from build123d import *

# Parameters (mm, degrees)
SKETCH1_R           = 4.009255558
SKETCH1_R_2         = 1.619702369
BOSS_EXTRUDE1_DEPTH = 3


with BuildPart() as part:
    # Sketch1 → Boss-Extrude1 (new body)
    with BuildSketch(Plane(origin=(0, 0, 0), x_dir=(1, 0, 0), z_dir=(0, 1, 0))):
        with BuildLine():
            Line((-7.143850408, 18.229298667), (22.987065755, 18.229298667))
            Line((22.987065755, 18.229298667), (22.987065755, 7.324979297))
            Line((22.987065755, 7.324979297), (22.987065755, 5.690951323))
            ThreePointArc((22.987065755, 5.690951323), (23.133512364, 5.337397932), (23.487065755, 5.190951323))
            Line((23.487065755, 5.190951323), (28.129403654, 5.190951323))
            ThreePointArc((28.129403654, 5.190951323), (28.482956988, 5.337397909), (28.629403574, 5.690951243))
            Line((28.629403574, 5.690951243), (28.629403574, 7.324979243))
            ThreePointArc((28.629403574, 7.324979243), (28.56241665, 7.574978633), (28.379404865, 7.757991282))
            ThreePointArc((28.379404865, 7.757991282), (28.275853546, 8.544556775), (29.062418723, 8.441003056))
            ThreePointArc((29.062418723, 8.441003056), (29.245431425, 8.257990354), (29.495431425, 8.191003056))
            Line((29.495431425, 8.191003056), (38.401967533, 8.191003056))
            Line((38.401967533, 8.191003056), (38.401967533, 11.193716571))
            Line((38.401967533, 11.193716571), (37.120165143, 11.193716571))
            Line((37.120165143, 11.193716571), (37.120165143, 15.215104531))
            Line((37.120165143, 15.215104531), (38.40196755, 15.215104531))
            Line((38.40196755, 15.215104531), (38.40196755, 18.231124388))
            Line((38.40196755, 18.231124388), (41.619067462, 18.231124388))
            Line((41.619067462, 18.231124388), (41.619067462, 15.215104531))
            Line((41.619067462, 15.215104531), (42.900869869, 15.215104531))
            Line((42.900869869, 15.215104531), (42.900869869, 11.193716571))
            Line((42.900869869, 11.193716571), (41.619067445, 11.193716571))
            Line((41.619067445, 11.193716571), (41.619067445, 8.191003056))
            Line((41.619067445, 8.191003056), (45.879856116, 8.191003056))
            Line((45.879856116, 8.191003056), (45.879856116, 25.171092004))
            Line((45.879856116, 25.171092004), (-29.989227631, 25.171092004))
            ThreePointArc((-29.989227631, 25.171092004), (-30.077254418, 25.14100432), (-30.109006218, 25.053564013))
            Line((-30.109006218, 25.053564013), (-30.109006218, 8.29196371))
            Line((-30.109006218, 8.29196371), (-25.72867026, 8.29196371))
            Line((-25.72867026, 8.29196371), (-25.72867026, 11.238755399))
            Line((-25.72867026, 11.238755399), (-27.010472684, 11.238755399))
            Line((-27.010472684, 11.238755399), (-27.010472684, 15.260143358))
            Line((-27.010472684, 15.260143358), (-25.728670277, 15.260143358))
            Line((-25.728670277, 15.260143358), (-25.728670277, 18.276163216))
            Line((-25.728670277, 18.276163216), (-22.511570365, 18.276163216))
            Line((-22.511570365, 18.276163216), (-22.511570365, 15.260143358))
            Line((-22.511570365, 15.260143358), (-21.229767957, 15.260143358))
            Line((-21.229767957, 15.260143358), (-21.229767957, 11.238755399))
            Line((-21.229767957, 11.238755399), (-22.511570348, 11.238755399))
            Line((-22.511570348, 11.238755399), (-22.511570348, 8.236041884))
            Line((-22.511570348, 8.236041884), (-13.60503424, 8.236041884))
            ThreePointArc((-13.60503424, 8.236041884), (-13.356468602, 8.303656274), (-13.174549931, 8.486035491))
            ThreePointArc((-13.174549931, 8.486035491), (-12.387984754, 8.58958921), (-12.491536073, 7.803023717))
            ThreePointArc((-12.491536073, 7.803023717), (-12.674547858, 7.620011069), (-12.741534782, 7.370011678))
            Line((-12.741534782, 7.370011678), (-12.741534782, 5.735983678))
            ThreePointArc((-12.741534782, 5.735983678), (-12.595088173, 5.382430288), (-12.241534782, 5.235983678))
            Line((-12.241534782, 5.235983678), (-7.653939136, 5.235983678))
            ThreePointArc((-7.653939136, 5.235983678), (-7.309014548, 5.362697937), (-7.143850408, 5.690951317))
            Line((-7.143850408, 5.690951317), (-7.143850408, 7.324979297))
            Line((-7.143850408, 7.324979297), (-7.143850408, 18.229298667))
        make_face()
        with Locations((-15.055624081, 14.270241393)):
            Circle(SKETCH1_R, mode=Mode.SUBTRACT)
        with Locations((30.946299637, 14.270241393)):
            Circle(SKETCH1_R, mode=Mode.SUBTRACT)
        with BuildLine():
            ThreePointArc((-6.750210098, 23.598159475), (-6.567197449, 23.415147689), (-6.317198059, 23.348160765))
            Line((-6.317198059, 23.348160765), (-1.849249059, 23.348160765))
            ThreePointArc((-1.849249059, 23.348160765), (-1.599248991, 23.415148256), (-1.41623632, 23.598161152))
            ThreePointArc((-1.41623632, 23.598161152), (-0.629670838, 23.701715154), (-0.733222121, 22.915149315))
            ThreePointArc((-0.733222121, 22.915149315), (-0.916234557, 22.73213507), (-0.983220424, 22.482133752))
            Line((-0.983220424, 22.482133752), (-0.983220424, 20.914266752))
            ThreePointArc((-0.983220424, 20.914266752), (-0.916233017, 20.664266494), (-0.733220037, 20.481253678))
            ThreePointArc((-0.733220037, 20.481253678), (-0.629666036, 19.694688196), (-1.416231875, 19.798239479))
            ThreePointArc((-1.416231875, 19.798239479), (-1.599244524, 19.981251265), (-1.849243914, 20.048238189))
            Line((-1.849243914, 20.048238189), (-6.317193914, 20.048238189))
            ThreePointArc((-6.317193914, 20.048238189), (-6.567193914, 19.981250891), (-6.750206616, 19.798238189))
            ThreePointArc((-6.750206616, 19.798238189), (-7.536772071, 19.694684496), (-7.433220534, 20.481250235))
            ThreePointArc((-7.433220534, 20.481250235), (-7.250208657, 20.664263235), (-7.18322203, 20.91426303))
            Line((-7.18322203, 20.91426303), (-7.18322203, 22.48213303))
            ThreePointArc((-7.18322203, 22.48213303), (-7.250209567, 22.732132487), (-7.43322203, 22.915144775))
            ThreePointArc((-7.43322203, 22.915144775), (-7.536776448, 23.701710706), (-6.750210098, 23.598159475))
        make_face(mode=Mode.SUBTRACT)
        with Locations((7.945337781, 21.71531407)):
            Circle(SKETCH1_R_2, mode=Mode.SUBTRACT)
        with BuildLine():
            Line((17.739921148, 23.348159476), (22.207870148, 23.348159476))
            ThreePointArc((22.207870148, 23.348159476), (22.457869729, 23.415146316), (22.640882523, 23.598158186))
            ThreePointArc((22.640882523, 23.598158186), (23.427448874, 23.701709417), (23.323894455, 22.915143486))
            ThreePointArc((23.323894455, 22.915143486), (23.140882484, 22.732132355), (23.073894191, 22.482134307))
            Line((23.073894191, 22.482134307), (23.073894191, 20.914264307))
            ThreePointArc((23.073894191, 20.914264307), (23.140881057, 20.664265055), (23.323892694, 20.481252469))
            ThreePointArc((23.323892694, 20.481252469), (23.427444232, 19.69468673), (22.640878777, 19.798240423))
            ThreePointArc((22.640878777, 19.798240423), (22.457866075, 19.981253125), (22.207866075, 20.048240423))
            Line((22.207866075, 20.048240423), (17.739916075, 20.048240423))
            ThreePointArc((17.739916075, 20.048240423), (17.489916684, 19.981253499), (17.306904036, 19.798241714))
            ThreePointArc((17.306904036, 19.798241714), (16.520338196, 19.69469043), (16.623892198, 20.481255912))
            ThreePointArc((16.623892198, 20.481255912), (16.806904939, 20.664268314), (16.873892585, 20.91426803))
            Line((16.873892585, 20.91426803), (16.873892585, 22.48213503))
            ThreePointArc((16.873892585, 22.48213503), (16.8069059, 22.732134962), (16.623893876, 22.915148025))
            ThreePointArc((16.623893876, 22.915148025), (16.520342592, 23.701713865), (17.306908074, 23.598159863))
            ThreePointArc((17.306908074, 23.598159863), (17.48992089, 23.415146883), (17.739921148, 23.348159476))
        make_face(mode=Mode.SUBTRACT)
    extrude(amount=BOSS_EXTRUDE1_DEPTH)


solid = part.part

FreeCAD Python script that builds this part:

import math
import FreeCAD as App
import Part
import Sketcher
from FreeCAD import Vector
Q = App.Units.Quantity

doc = App.newDocument("Part")
body = doc.addObject("PartDesign::Body", "Body")

# Sketch on XZ plane
sketch1 = body.newObject("Sketcher::SketchObject", "Sketch")
sketch1.AttachmentSupport = (doc.getObject("XZ_Plane"), [""])
sketch1.MapMode = "FlatFace"
sketch1.addGeometry(Part.LineSegment(Vector(-7.14385, -18.229299, 0), Vector(22.987066, -18.229299, 0)), False)
sketch1.addGeometry(Part.LineSegment(Vector(22.987066, -18.229299, 0), Vector(22.987066, -5.690951, 0)), False)
sketch1.addGeometry(Part.ArcOfCircle(Part.Circle(Vector(23.487066, -5.690951, 0), Vector(0, 0, 1), 0.5), math.radians(90), math.radians(180)), False)
sketch1.addGeometry(Part.LineSegment(Vector(23.487066, -5.190951, 0), Vector(28.129404, -5.190951, 0)), False)
sketch1.addGeometry(Part.ArcOfCircle(Part.Circle(Vector(28.129404, -5.690951, 0), Vector(0, 0, 1), 0.5), math.radians(0), math.radians(90)), False)
sketch1.addGeometry(Part.LineSegment(Vector(28.629404, -5.690951, 0), Vector(28.629404, -7.324979, 0)), False)
sketch1.addGeometry(Part.ArcOfCircle(Part.Circle(Vector(28.129403, -7.324979, 0), Vector(0, 0, 1), 0.5), math.radians(-59.99982), math.radians(0)), False)
sketch1.addGeometry(Part.ArcOfCircle(Part.Circle(Vector(28.629406, -8.191003, 0), Vector(0, 0, 1), 0.5), math.radians(120.000198), math.radians(329.999977)), False)
sketch1.addGeometry(Part.ArcOfCircle(Part.Circle(Vector(29.495431, -8.691003, 0), Vector(0, 0, 1), 0.5), math.radians(90), math.radians(150)), False)
sketch1.addGeometry(Part.LineSegment(Vector(29.495431, -8.191003, 0), Vector(38.401968, -8.191003, 0)), False)
sketch1.addGeometry(Part.LineSegment(Vector(38.401968, -8.191003, 0), Vector(38.401968, -11.193717, 0)), False)
sketch1.addGeometry(Part.LineSegment(Vector(38.401968, -11.193717, 0), Vector(37.120165, -11.193717, 0)), False)
sketch1.addGeometry(Part.LineSegment(Vector(37.120165, -11.193717, 0), Vector(37.120165, -15.215105, 0)), False)
sketch1.addGeometry(Part.LineSegment(Vector(37.120165, -15.215105, 0), Vector(38.401968, -15.215105, 0)), False)
sketch1.addGeometry(Part.LineSegment(Vector(38.401968, -15.215105, 0), Vector(38.401968, -18.231124, 0)), False)
sketch1.addGeometry(Part.LineSegment(Vector(38.401968, -18.231124, 0), Vector(41.619067, -18.231124, 0)), False)
sketch1.addGeometry(Part.LineSegment(Vector(41.619067, -18.231124, 0), Vector(41.619067, -15.215105, 0)), False)
sketch1.addGeometry(Part.LineSegment(Vector(41.619067, -15.215105, 0), Vector(42.90087, -15.215105, 0)), False)
sketch1.addGeometry(Part.LineSegment(Vector(42.90087, -15.215105, 0), Vector(42.90087, -11.193717, 0)), False)
sketch1.addGeometry(Part.LineSegment(Vector(42.90087, -11.193717, 0), Vector(41.619067, -11.193717, 0)), False)
sketch1.addGeometry(Part.LineSegment(Vector(41.619067, -11.193717, 0), Vector(41.619067, -8.191003, 0)), False)
sketch1.addGeometry(Part.LineSegment(Vector(41.619067, -8.191003, 0), Vector(45.879856, -8.191003, 0)), False)
sketch1.addGeometry(Part.LineSegment(Vector(45.879856, -8.191003, 0), Vector(45.879856, -25.171092, 0)), False)
sketch1.addGeometry(Part.LineSegment(Vector(45.879856, -25.171092, 0), Vector(-29.989228, -25.171092, 0)), False)
sketch1.addGeometry(Part.ArcOfCircle(Part.Circle(Vector(-30.001823, -25.064128, 0), Vector(0, 0, 1), 0.107703), math.radians(174.371122), math.radians(276.715622)), False)
sketch1.addGeometry(Part.LineSegment(Vector(-30.109006, -25.053564, 0), Vector(-30.109006, -8.291964, 0)), False)
sketch1.addGeometry(Part.LineSegment(Vector(-30.109006, -8.291964, 0), Vector(-25.72867, -8.291964, 0)), False)
sketch1.addGeometry(Part.LineSegment(Vector(-25.72867, -8.291964, 0), Vector(-25.72867, -11.238755, 0)), False)
sketch1.addGeometry(Part.LineSegment(Vector(-25.72867, -11.238755, 0), Vector(-27.010473, -11.238755, 0)), False)
sketch1.addGeometry(Part.LineSegment(Vector(-27.010473, -11.238755, 0), Vector(-27.010473, -15.260143, 0)), False)
sketch1.addGeometry(Part.LineSegment(Vector(-27.010473, -15.260143, 0), Vector(-25.72867, -15.260143, 0)), False)
sketch1.addGeometry(Part.LineSegment(Vector(-25.72867, -15.260143, 0), Vector(-25.72867, -18.276163, 0)), False)
sketch1.addGeometry(Part.LineSegment(Vector(-25.72867, -18.276163, 0), Vector(-22.51157, -18.276163, 0)), False)
sketch1.addGeometry(Part.LineSegment(Vector(-22.51157, -18.276163, 0), Vector(-22.51157, -15.260143, 0)), False)
sketch1.addGeometry(Part.LineSegment(Vector(-22.51157, -15.260143, 0), Vector(-21.229768, -15.260143, 0)), False)
sketch1.addGeometry(Part.LineSegment(Vector(-21.229768, -15.260143, 0), Vector(-21.229768, -11.238755, 0)), False)
sketch1.addGeometry(Part.LineSegment(Vector(-21.229768, -11.238755, 0), Vector(-22.51157, -11.238755, 0)), False)
sketch1.addGeometry(Part.LineSegment(Vector(-22.51157, -11.238755, 0), Vector(-22.51157, -8.236042, 0)), False)
sketch1.addGeometry(Part.LineSegment(Vector(-22.51157, -8.236042, 0), Vector(-13.605034, -8.236042, 0)), False)
sketch1.addGeometry(Part.ArcOfCircle(Part.Circle(Vector(-13.607563, -8.736035, 0), Vector(0, 0, 1), 0.5), math.radians(30), math.radians(89.710266)), False)
sketch1.addGeometry(Part.ArcOfCircle(Part.Circle(Vector(-12.741537, -8.236035, 0), Vector(0, 0, 1), 0.5), math.radians(-149.999977), math.radians(59.999802)), False)
sketch1.addGeometry(Part.ArcOfCircle(Part.Circle(Vector(-12.241535, -7.370012, 0), Vector(0, 0, 1), 0.5), math.radians(180), math.radians(239.99982)), False)
sketch1.addGeometry(Part.LineSegment(Vector(-12.741535, -7.370012, 0), Vector(-12.741535, -5.735984, 0)), False)
sketch1.addGeometry(Part.ArcOfCircle(Part.Circle(Vector(-12.241535, -5.735984, 0), Vector(0, 0, 1), 0.5), math.radians(90), math.radians(180)), False)
sketch1.addGeometry(Part.LineSegment(Vector(-12.241535, -5.235984, 0), Vector(-7.653939, -5.235984, 0)), False)
sketch1.addGeometry(Part.ArcOfCircle(Part.Circle(Vector(-7.641832, -5.735837, 0), Vector(0, 0, 1), 0.5), math.radians(5.150462), math.radians(91.387557)), False)
sketch1.addGeometry(Part.LineSegment(Vector(-7.14385, -5.690951, 0), Vector(-7.14385, -18.229299, 0)), False)
sketch1.addGeometry(Part.Circle(Vector(-15.055624, -14.270241, 0), Vector(0, 0, 1), 4.009256), False)
sketch1.addGeometry(Part.Circle(Vector(30.9463, -14.270241, 0), Vector(0, 0, 1), 4.009256), False)
sketch1.addGeometry(Part.ArcOfCircle(Part.Circle(Vector(-7.183222, -23.348158, 0), Vector(0, 0, 1), 0.5), math.radians(119.999966), math.radians(329.999802)), False)
sketch1.addGeometry(Part.ArcOfCircle(Part.Circle(Vector(-6.317198, -23.848161, 0), Vector(0, 0, 1), 0.5), math.radians(90), math.radians(149.99982)), False)
sketch1.addGeometry(Part.LineSegment(Vector(-6.317198, -23.348161, 0), Vector(-1.849249, -23.348161, 0)), False)
sketch1.addGeometry(Part.ArcOfCircle(Part.Circle(Vector(-1.849249, -23.848161, 0), Vector(0, 0, 1), 0.5), math.radians(29.999966), math.radians(89.999962)), False)
sketch1.addGeometry(Part.ArcOfCircle(Part.Circle(Vector(-0.983224, -23.348161, 0), Vector(0, 0, 1), 0.5), math.radians(-150), math.radians(59.999802)), False)
sketch1.addGeometry(Part.ArcOfCircle(Part.Circle(Vector(-0.48322, -22.482138, 0), Vector(0, 0, 1), 0.5), math.radians(179.999569), math.radians(239.999766)), False)
sketch1.addGeometry(Part.LineSegment(Vector(-0.98322, -22.482134, 0), Vector(-0.98322, -20.914267, 0)), False)
sketch1.addGeometry(Part.ArcOfCircle(Part.Circle(Vector(-0.48322, -20.914267, 0), Vector(0, 0, 1), 0.5), math.radians(119.999966), math.radians(180)), False)
sketch1.addGeometry(Part.ArcOfCircle(Part.Circle(Vector(-0.98322, -20.048241, 0), Vector(0, 0, 1), 0.5), math.radians(-60), math.radians(149.999802)), False)
sketch1.addGeometry(Part.ArcOfCircle(Part.Circle(Vector(-1.849244, -19.548238, 0), Vector(0, 0, 1), 0.5), math.radians(-90), math.radians(-30.00018)), False)
sketch1.addGeometry(Part.LineSegment(Vector(-1.849244, -20.048238, 0), Vector(-6.317194, -20.048238, 0)), False)
sketch1.addGeometry(Part.ArcOfCircle(Part.Circle(Vector(-6.317194, -19.548238, 0), Vector(0, 0, 1), 0.5), math.radians(-150), math.radians(-90)), False)
sketch1.addGeometry(Part.ArcOfCircle(Part.Circle(Vector(-7.183219, -20.048238, 0), Vector(0, 0, 1), 0.5), math.radians(30.000023), math.radians(239.99982)), False)
sketch1.addGeometry(Part.ArcOfCircle(Part.Circle(Vector(-7.683222, -20.914262, 0), Vector(0, 0, 1), 0.5), math.radians(-0.00011), math.radians(59.999802)), False)
sketch1.addGeometry(Part.LineSegment(Vector(-7.183222, -20.914263, 0), Vector(-7.183222, -22.482133, 0)), False)
sketch1.addGeometry(Part.ArcOfCircle(Part.Circle(Vector(-7.683222, -22.482132, 0), Vector(0, 0, 1), 0.5), math.radians(-60), math.radians(-0.00011)), False)
sketch1.addGeometry(Part.Circle(Vector(7.945338, -21.715314, 0), Vector(0, 0, 1), 1.619702), False)
sketch1.addGeometry(Part.ArcOfCircle(Part.Circle(Vector(17.739921, -23.84816, 0), Vector(0, 0, 1), 0.5), math.radians(90), math.radians(150.000034)), False)
sketch1.addGeometry(Part.LineSegment(Vector(17.739921, -23.348159, 0), Vector(22.20787, -23.348159, 0)), False)
sketch1.addGeometry(Part.ArcOfCircle(Part.Circle(Vector(22.20787, -23.84816, 0), Vector(0, 0, 1), 0.5), math.radians(30.00018), math.radians(90.000039)), False)
sketch1.addGeometry(Part.ArcOfCircle(Part.Circle(Vector(23.073895, -23.348157, 0), Vector(0, 0, 1), 0.5), math.radians(-149.999802), math.radians(60.000034)), False)
sketch1.addGeometry(Part.ArcOfCircle(Part.Circle(Vector(23.573894, -22.482131, 0), Vector(0, 0, 1), 0.5), math.radians(-179.999579), math.radians(-119.999965)), False)
sketch1.addGeometry(Part.LineSegment(Vector(23.073894, -22.482134, 0), Vector(23.073894, -20.914264, 0)), False)
sketch1.addGeometry(Part.ArcOfCircle(Part.Circle(Vector(23.573894, -20.914264, 0), Vector(0, 0, 1), 0.5), math.radians(120.000198), math.radians(180)), False)
sketch1.addGeometry(Part.ArcOfCircle(Part.Circle(Vector(23.073891, -20.048241, 0), Vector(0, 0, 1), 0.5), math.radians(-59.99982), math.radians(149.999977)), False)
sketch1.addGeometry(Part.ArcOfCircle(Part.Circle(Vector(22.207866, -19.54824, 0), Vector(0, 0, 1), 0.5), math.radians(-90), math.radians(-30)), False)
sketch1.addGeometry(Part.LineSegment(Vector(22.207866, -20.04824, 0), Vector(17.739916, -20.04824, 0)), False)
sketch1.addGeometry(Part.ArcOfCircle(Part.Circle(Vector(17.739916, -19.54824, 0), Vector(0, 0, 1), 0.5), math.radians(-149.99982), math.radians(-90)), False)
sketch1.addGeometry(Part.ArcOfCircle(Part.Circle(Vector(16.873892, -20.048243, 0), Vector(0, 0, 1), 0.5), math.radians(30.000198), math.radians(240)), False)
sketch1.addGeometry(Part.ArcOfCircle(Part.Circle(Vector(16.373892, -20.914269, 0), Vector(0, 0, 1), 0.5), math.radians(0.000109), math.radians(60.000034)), False)
sketch1.addGeometry(Part.LineSegment(Vector(16.873893, -20.914268, 0), Vector(16.873893, -22.482135, 0)), False)
sketch1.addGeometry(Part.ArcOfCircle(Part.Circle(Vector(16.373892, -22.482136, 0), Vector(0, 0, 1), 0.5), math.radians(-59.99982), math.radians(0.000109)), False)
sketch1.addGeometry(Part.ArcOfCircle(Part.Circle(Vector(16.873895, -23.34816, 0), Vector(0, 0, 1), 0.5), math.radians(120.000198), math.radians(330)), False)
sketch1.addConstraint(Sketcher.Constraint("Coincident", 0, 2, 1, 1))
sketch1.addConstraint(Sketcher.Constraint("Coincident", 1, 2, 2, 2))
sketch1.addConstraint(Sketcher.Constraint("Coincident", 2, 1, 3, 1))
sketch1.addConstraint(Sketcher.Constraint("Coincident", 3, 2, 4, 2))
sketch1.addConstraint(Sketcher.Constraint("Coincident", 4, 1, 5, 1))
sketch1.addConstraint(Sketcher.Constraint("Coincident", 5, 2, 6, 2))
sketch1.addConstraint(Sketcher.Constraint("Coincident", 6, 1, 7, 1))
sketch1.addConstraint(Sketcher.Constraint("Coincident", 7, 2, 8, 2))
sketch1.addConstraint(Sketcher.Constraint("Coincident", 8, 1, 9, 1))
sketch1.addConstraint(Sketcher.Constraint("Coincident", 9, 2, 10, 1))
sketch1.addConstraint(Sketcher.Constraint("Coincident", 10, 2, 11, 1))
sketch1.addConstraint(Sketcher.Constraint("Coincident", 11, 2, 12, 1))
sketch1.addConstraint(Sketcher.Constraint("Coincident", 12, 2, 13, 1))
sketch1.addConstraint(Sketcher.Constraint("Coincident", 13, 2, 14, 1))
sketch1.addConstraint(Sketcher.Constraint("Coincident", 14, 2, 15, 1))
sketch1.addConstraint(Sketcher.Constraint("Coincident", 15, 2, 16, 1))
sketch1.addConstraint(Sketcher.Constraint("Coincident", 16, 2, 17, 1))
sketch1.addConstraint(Sketcher.Constraint("Coincident", 17, 2, 18, 1))
sketch1.addConstraint(Sketcher.Constraint("Coincident", 18, 2, 19, 1))
sketch1.addConstraint(Sketcher.Constraint("Coincident", 19, 2, 20, 1))
sketch1.addConstraint(Sketcher.Constraint("Coincident", 20, 2, 21, 1))
sketch1.addConstraint(Sketcher.Constraint("Coincident", 21, 2, 22, 1))
sketch1.addConstraint(Sketcher.Constraint("Coincident", 22, 2, 23, 1))
sketch1.addConstraint(Sketcher.Constraint("Coincident", 23, 2, 24, 2))
sketch1.addConstraint(Sketcher.Constraint("Coincident", 24, 1, 25, 1))
sketch1.addConstraint(Sketcher.Constraint("Coincident", 25, 2, 26, 1))
sketch1.addConstraint(Sketcher.Constraint("Coincident", 26, 2, 27, 1))
sketch1.addConstraint(Sketcher.Constraint("Coincident", 27, 2, 28, 1))
sketch1.addConstraint(Sketcher.Constraint("Coincident", 28, 2, 29, 1))
sketch1.addConstraint(Sketcher.Constraint("Coincident", 29, 2, 30, 1))
sketch1.addConstraint(Sketcher.Constraint("Coincident", 30, 2, 31, 1))
sketch1.addConstraint(Sketcher.Constraint("Coincident", 31, 2, 32, 1))
sketch1.addConstraint(Sketcher.Constraint("Coincident", 32, 2, 33, 1))
sketch1.addConstraint(Sketcher.Constraint("Coincident", 33, 2, 34, 1))
sketch1.addConstraint(Sketcher.Constraint("Coincident", 34, 2, 35, 1))
sketch1.addConstraint(Sketcher.Constraint("Coincident", 35, 2, 36, 1))
sketch1.addConstraint(Sketcher.Constraint("Coincident", 36, 2, 37, 1))
sketch1.addConstraint(Sketcher.Constraint("Coincident", 37, 2, 38, 1))
sketch1.addConstraint(Sketcher.Constraint("Coincident", 38, 2, 39, 2))
sketch1.addConstraint(Sketcher.Constraint("Coincident", 39, 1, 40, 1))
sketch1.addConstraint(Sketcher.Constraint("Coincident", 40, 2, 41, 2))
sketch1.addConstraint(Sketcher.Constraint("Coincident", 41, 1, 42, 1))
sketch1.addConstraint(Sketcher.Constraint("Coincident", 42, 2, 43, 2))
sketch1.addConstraint(Sketcher.Constraint("Coincident", 43, 1, 44, 1))
sketch1.addConstraint(Sketcher.Constraint("Coincident", 44, 2, 45, 2))
sketch1.addConstraint(Sketcher.Constraint("Coincident", 45, 1, 46, 1))
sketch1.addConstraint(Sketcher.Constraint("Coincident", 46, 2, 0, 1))
sketch1.addConstraint(Sketcher.Constraint("Coincident", 49, 2, 50, 2))
sketch1.addConstraint(Sketcher.Constraint("Coincident", 50, 1, 51, 1))
sketch1.addConstraint(Sketcher.Constraint("Coincident", 51, 2, 52, 2))
sketch1.addConstraint(Sketcher.Constraint("Coincident", 52, 1, 53, 1))
sketch1.addConstraint(Sketcher.Constraint("Coincident", 53, 2, 54, 2))
sketch1.addConstraint(Sketcher.Constraint("Coincident", 54, 1, 55, 1))
sketch1.addConstraint(Sketcher.Constraint("Coincident", 55, 2, 56, 2))
sketch1.addConstraint(Sketcher.Constraint("Coincident", 56, 1, 57, 1))
sketch1.addConstraint(Sketcher.Constraint("Coincident", 57, 2, 58, 2))
sketch1.addConstraint(Sketcher.Constraint("Coincident", 58, 1, 59, 1))
sketch1.addConstraint(Sketcher.Constraint("Coincident", 59, 2, 60, 2))
sketch1.addConstraint(Sketcher.Constraint("Coincident", 60, 1, 61, 1))
sketch1.addConstraint(Sketcher.Constraint("Coincident", 61, 2, 62, 2))
sketch1.addConstraint(Sketcher.Constraint("Coincident", 62, 1, 63, 1))
sketch1.addConstraint(Sketcher.Constraint("Coincident", 63, 2, 64, 2))
sketch1.addConstraint(Sketcher.Constraint("Coincident", 64, 1, 49, 1))
sketch1.addConstraint(Sketcher.Constraint("Coincident", 66, 1, 67, 1))
sketch1.addConstraint(Sketcher.Constraint("Coincident", 67, 2, 68, 2))
sketch1.addConstraint(Sketcher.Constraint("Coincident", 68, 1, 69, 1))
sketch1.addConstraint(Sketcher.Constraint("Coincident", 69, 2, 70, 2))
sketch1.addConstraint(Sketcher.Constraint("Coincident", 70, 1, 71, 1))
sketch1.addConstraint(Sketcher.Constraint("Coincident", 71, 2, 72, 2))
sketch1.addConstraint(Sketcher.Constraint("Coincident", 72, 1, 73, 1))
sketch1.addConstraint(Sketcher.Constraint("Coincident", 73, 2, 74, 2))
sketch1.addConstraint(Sketcher.Constraint("Coincident", 74, 1, 75, 1))
sketch1.addConstraint(Sketcher.Constraint("Coincident", 75, 2, 76, 2))
sketch1.addConstraint(Sketcher.Constraint("Coincident", 76, 1, 77, 1))
sketch1.addConstraint(Sketcher.Constraint("Coincident", 77, 2, 78, 2))
sketch1.addConstraint(Sketcher.Constraint("Coincident", 78, 1, 79, 1))
sketch1.addConstraint(Sketcher.Constraint("Coincident", 79, 2, 80, 2))
sketch1.addConstraint(Sketcher.Constraint("Coincident", 80, 1, 81, 1))
sketch1.addConstraint(Sketcher.Constraint("Coincident", 81, 2, 66, 2))
sketch1.addConstraint(Sketcher.Constraint("Horizontal", 0))
sketch1.addConstraint(Sketcher.Constraint("Vertical", 1))
sketch1.addConstraint(Sketcher.Constraint("Horizontal", 3))
sketch1.addConstraint(Sketcher.Constraint("Vertical", 5))
sketch1.addConstraint(Sketcher.Constraint("Horizontal", 9))
sketch1.addConstraint(Sketcher.Constraint("Vertical", 10))
sketch1.addConstraint(Sketcher.Constraint("Horizontal", 11))
sketch1.addConstraint(Sketcher.Constraint("Vertical", 12))
sketch1.addConstraint(Sketcher.Constraint("Horizontal", 13))
sketch1.addConstraint(Sketcher.Constraint("Vertical", 14))
sketch1.addConstraint(Sketcher.Constraint("Horizontal", 15))
sketch1.addConstraint(Sketcher.Constraint("Vertical", 16))
sketch1.addConstraint(Sketcher.Constraint("Horizontal", 17))
sketch1.addConstraint(Sketcher.Constraint("Vertical", 18))
sketch1.addConstraint(Sketcher.Constraint("Horizontal", 19))
sketch1.addConstraint(Sketcher.Constraint("Vertical", 20))
sketch1.addConstraint(Sketcher.Constraint("Horizontal", 21))
sketch1.addConstraint(Sketcher.Constraint("Vertical", 22))
sketch1.addConstraint(Sketcher.Constraint("Horizontal", 23))
sketch1.addConstraint(Sketcher.Constraint("Vertical", 25))
sketch1.addConstraint(Sketcher.Constraint("Horizontal", 26))
sketch1.addConstraint(Sketcher.Constraint("Vertical", 27))
sketch1.addConstraint(Sketcher.Constraint("Horizontal", 28))
sketch1.addConstraint(Sketcher.Constraint("Vertical", 29))
sketch1.addConstraint(Sketcher.Constraint("Horizontal", 30))
sketch1.addConstraint(Sketcher.Constraint("Vertical", 31))
sketch1.addConstraint(Sketcher.Constraint("Horizontal", 32))
sketch1.addConstraint(Sketcher.Constraint("Vertical", 33))
sketch1.addConstraint(Sketcher.Constraint("Horizontal", 34))
sketch1.addConstraint(Sketcher.Constraint("Vertical", 35))
sketch1.addConstraint(Sketcher.Constraint("Horizontal", 36))
sketch1.addConstraint(Sketcher.Constraint("Vertical", 37))
sketch1.addConstraint(Sketcher.Constraint("Horizontal", 38))
sketch1.addConstraint(Sketcher.Constraint("Vertical", 42))
sketch1.addConstraint(Sketcher.Constraint("Horizontal", 44))
sketch1.addConstraint(Sketcher.Constraint("Vertical", 46))
sketch1.addConstraint(Sketcher.Constraint("Horizontal", 51))
sketch1.addConstraint(Sketcher.Constraint("Vertical", 55))
sketch1.addConstraint(Sketcher.Constraint("Horizontal", 59))
sketch1.addConstraint(Sketcher.Constraint("Vertical", 63))
sketch1.addConstraint(Sketcher.Constraint("Horizontal", 67))
sketch1.addConstraint(Sketcher.Constraint("Vertical", 71))
sketch1.addConstraint(Sketcher.Constraint("Horizontal", 75))
sketch1.addConstraint(Sketcher.Constraint("Vertical", 79))
sketch1.addConstraint(Sketcher.Constraint("Radius", 2, Q("0.5 mm")))
sketch1.addConstraint(Sketcher.Constraint("Radius", 4, Q("0.5 mm")))
sketch1.addConstraint(Sketcher.Constraint("Radius", 6, Q("0.5 mm")))
sketch1.addConstraint(Sketcher.Constraint("Radius", 7, Q("0.5 mm")))
sketch1.addConstraint(Sketcher.Constraint("Radius", 8, Q("0.5 mm")))
sketch1.addConstraint(Sketcher.Constraint("Radius", 39, Q("0.5 mm")))
sketch1.addConstraint(Sketcher.Constraint("Radius", 40, Q("0.5 mm")))
sketch1.addConstraint(Sketcher.Constraint("Radius", 41, Q("0.5 mm")))
sketch1.addConstraint(Sketcher.Constraint("Radius", 43, Q("0.5 mm")))
sketch1.addConstraint(Sketcher.Constraint("Radius", 45, Q("0.5 mm")))
sketch1.addConstraint(Sketcher.Constraint("Radius", 49, Q("0.5 mm")))
sketch1.addConstraint(Sketcher.Constraint("Radius", 50, Q("0.5 mm")))
sketch1.addConstraint(Sketcher.Constraint("Radius", 52, Q("0.5 mm")))
sketch1.addConstraint(Sketcher.Constraint("Radius", 53, Q("0.5 mm")))
sketch1.addConstraint(Sketcher.Constraint("Radius", 54, Q("0.5 mm")))
sketch1.addConstraint(Sketcher.Constraint("Radius", 56, Q("0.5 mm")))
sketch1.addConstraint(Sketcher.Constraint("Radius", 57, Q("0.5 mm")))
sketch1.addConstraint(Sketcher.Constraint("Radius", 58, Q("0.5 mm")))
sketch1.addConstraint(Sketcher.Constraint("Radius", 60, Q("0.5 mm")))
sketch1.addConstraint(Sketcher.Constraint("Radius", 61, Q("0.5 mm")))
sketch1.addConstraint(Sketcher.Constraint("Radius", 62, Q("0.5 mm")))
sketch1.addConstraint(Sketcher.Constraint("Radius", 64, Q("0.5 mm")))
sketch1.addConstraint(Sketcher.Constraint("Radius", 66, Q("0.5 mm")))
sketch1.addConstraint(Sketcher.Constraint("Radius", 68, Q("0.5 mm")))
sketch1.addConstraint(Sketcher.Constraint("Radius", 69, Q("0.5 mm")))
sketch1.addConstraint(Sketcher.Constraint("Radius", 70, Q("0.5 mm")))
sketch1.addConstraint(Sketcher.Constraint("Radius", 72, Q("0.5 mm")))
sketch1.addConstraint(Sketcher.Constraint("Radius", 73, Q("0.5 mm")))
sketch1.addConstraint(Sketcher.Constraint("Radius", 74, Q("0.5 mm")))
sketch1.addConstraint(Sketcher.Constraint("Radius", 76, Q("0.5 mm")))
sketch1.addConstraint(Sketcher.Constraint("Radius", 77, Q("0.5 mm")))
sketch1.addConstraint(Sketcher.Constraint("Radius", 78, Q("0.5 mm")))
sketch1.addConstraint(Sketcher.Constraint("Radius", 80, Q("0.5 mm")))
sketch1.addConstraint(Sketcher.Constraint("Radius", 81, Q("0.5 mm")))
sketch1.addConstraint(Sketcher.Constraint("Diameter", 47, Q("8.018511 mm")))
sketch1.addConstraint(Sketcher.Constraint("Diameter", 48, Q("8.018511 mm")))
sketch1.addConstraint(Sketcher.Constraint("Diameter", 65, Q("3.239405 mm")))
sketch1.addConstraint(Sketcher.Constraint("DistanceX", 15, 1, 15, 2, Q("3.2171 mm")))
sketch1.addConstraint(Sketcher.Constraint("DistanceX", 32, 1, 32, 2, Q("3.2171 mm")))
sketch1.addConstraint(Sketcher.Constraint("DistanceY", 25, 1, 25, 2, Q("16.7616 mm")))
sketch1.addConstraint(Sketcher.Constraint("Radius", 24, Q("0.107703 mm")))
sketch1.addConstraint(Sketcher.Constraint("DistanceX", 21, 1, 21, 2, Q("4.260789 mm")))
sketch1.addConstraint(Sketcher.Constraint("DistanceX", 51, 1, 51, 2, Q("4.467949 mm")))
sketch1.addConstraint(Sketcher.Constraint("DistanceX", 59, 2, 59, 1, Q("4.46795 mm")))
sketch1.addConstraint(Sketcher.Constraint("DistanceX", 67, 1, 67, 2, Q("4.467949 mm")))
sketch1.addConstraint(Sketcher.Constraint("DistanceX", 75, 2, 75, 1, Q("4.46795 mm")))
sketch1.addConstraint(Sketcher.Constraint("DistanceY", 14, 2, 14, 1, Q("3.01602 mm")))
sketch1.addConstraint(Sketcher.Constraint("DistanceY", 16, 1, 16, 2, Q("3.01602 mm")))
sketch1.addConstraint(Sketcher.Constraint("DistanceY", 22, 2, 22, 1, Q("16.980089 mm")))
sketch1.addConstraint(Sketcher.Constraint("DistanceY", 27, 2, 27, 1, Q("2.946792 mm")))
sketch1.addConstraint(Sketcher.Constraint("DistanceY", 31, 2, 31, 1, Q("3.01602 mm")))
sketch1.addConstraint(Sketcher.Constraint("DistanceY", 33, 1, 33, 2, Q("3.01602 mm")))
sketch1.addConstraint(Sketcher.Constraint("DistanceY", 63, 2, 63, 1, Q("1.56787 mm")))
sketch1.addConstraint(Sketcher.Constraint("DistanceY", 71, 1, 71, 2, Q("1.56787 mm")))
sketch1.addConstraint(Sketcher.Constraint("DistanceX", -1, 1, 48, 3, Q("30.9463 mm")))
sketch1.addConstraint(Sketcher.Constraint("DistanceX", 50, 3, -1, 1, Q("6.317198 mm")))
sketch1.addConstraint(Sketcher.Constraint("DistanceY", 0, 2, -1, 1, Q("18.229299 mm")))
sketch1.addConstraint(Sketcher.Constraint("DistanceX", 50, 1, -1, 1, Q("6.317198 mm")))
sketch1.addConstraint(Sketcher.Constraint("DistanceX", 0, 1, 0, 2, Q("30.130916 mm")))
sketch1.addConstraint(Sketcher.Constraint("DistanceX", 3, 1, 3, 2, Q("4.642338 mm")))
sketch1.addConstraint(Sketcher.Constraint("DistanceX", 9, 1, 9, 2, Q("8.906536 mm")))
sketch1.addConstraint(Sketcher.Constraint("DistanceX", 11, 2, 11, 1, Q("1.281802 mm")))
sketch1.addConstraint(Sketcher.Constraint("DistanceX", 13, 1, 13, 2, Q("1.281802 mm")))
sketch1.addConstraint(Sketcher.Constraint("DistanceX", 17, 1, 17, 2, Q("1.281802 mm")))
sketch1.addConstraint(Sketcher.Constraint("DistanceX", 19, 2, 19, 1, Q("1.281802 mm")))
sketch1.addConstraint(Sketcher.Constraint("DistanceX", 23, 2, 23, 1, Q("75.869084 mm")))
sketch1.addConstraint(Sketcher.Constraint("DistanceX", 26, 1, 26, 2, Q("4.380336 mm")))
sketch1.addConstraint(Sketcher.Constraint("DistanceX", 28, 2, 28, 1, Q("1.281802 mm")))
sketch1.addConstraint(Sketcher.Constraint("DistanceX", 30, 1, 30, 2, Q("1.281802 mm")))
sketch1.addConstraint(Sketcher.Constraint("DistanceX", 34, 1, 34, 2, Q("1.281802 mm")))
sketch1.addConstraint(Sketcher.Constraint("DistanceX", 36, 2, 36, 1, Q("1.281802 mm")))
sketch1.addConstraint(Sketcher.Constraint("DistanceX", 38, 1, 38, 2, Q("8.906536 mm")))
sketch1.addConstraint(Sketcher.Constraint("DistanceX", 44, 1, 44, 2, Q("4.587596 mm")))
sketch1.addConstraint(Sketcher.Constraint("DistanceY", 1, 1, 1, 2, Q("12.538347 mm")))
sketch1.addConstraint(Sketcher.Constraint("DistanceY", 5, 2, 5, 1, Q("1.634028 mm")))
sketch1.addConstraint(Sketcher.Constraint("DistanceY", 10, 2, 10, 1, Q("3.002714 mm")))
sketch1.addConstraint(Sketcher.Constraint("DistanceY", 12, 2, 12, 1, Q("4.021388 mm")))
sketch1.addConstraint(Sketcher.Constraint("DistanceY", 18, 1, 18, 2, Q("4.021388 mm")))
sketch1.addConstraint(Sketcher.Constraint("DistanceY", 20, 1, 20, 2, Q("3.002714 mm")))
sketch1.addConstraint(Sketcher.Constraint("DistanceY", 29, 2, 29, 1, Q("4.021388 mm")))
sketch1.addConstraint(Sketcher.Constraint("DistanceY", 35, 1, 35, 2, Q("4.021388 mm")))
sketch1.addConstraint(Sketcher.Constraint("DistanceY", 37, 1, 37, 2, Q("3.002714 mm")))
sketch1.addConstraint(Sketcher.Constraint("DistanceY", 42, 1, 42, 2, Q("1.634028 mm")))
sketch1.addConstraint(Sketcher.Constraint("DistanceY", 46, 2, 46, 1, Q("12.538347 mm")))
sketch1.addConstraint(Sketcher.Constraint("DistanceY", 55, 1, 55, 2, Q("1.567867 mm")))
sketch1.addConstraint(Sketcher.Constraint("DistanceY", 79, 2, 79, 1, Q("1.567867 mm")))
sketch1.addConstraint(Sketcher.Constraint("DistanceY", 2, 3, -1, 1, Q("5.690951 mm")))
sketch1.addConstraint(Sketcher.Constraint("DistanceY", 6, 3, -1, 1, Q("7.324979 mm")))
sketch1.addConstraint(Sketcher.Constraint("DistanceX", -1, 1, 8, 3, Q("29.495431 mm")))
sketch1.addConstraint(Sketcher.Constraint("DistanceY", 24, 3, -1, 1, Q("25.064128 mm")))
sketch1.addConstraint(Sketcher.Constraint("DistanceY", 41, 3, -1, 1, Q("7.370012 mm")))
sketch1.addConstraint(Sketcher.Constraint("DistanceX", 45, 3, -1, 1, Q("7.641832 mm")))
sketch1.addConstraint(Sketcher.Constraint("DistanceY", 47, 3, -1, 1, Q("14.270241 mm")))
sketch1.addConstraint(Sketcher.Constraint("DistanceY", 48, 3, -1, 1, Q("14.270241 mm")))
sketch1.addConstraint(Sketcher.Constraint("DistanceY", 50, 3, -1, 1, Q("23.848161 mm")))
sketch1.addConstraint(Sketcher.Constraint("DistanceX", 52, 3, -1, 1, Q("1.849249 mm")))
sketch1.addConstraint(Sketcher.Constraint("DistanceY", 53, 3, -1, 1, Q("23.348161 mm")))
sketch1.addConstraint(Sketcher.Constraint("DistanceX", 54, 3, -1, 1, Q("0.48322 mm")))
sketch1.addConstraint(Sketcher.Constraint("DistanceX", 57, 3, -1, 1, Q("0.98322 mm")))
sketch1.addConstraint(Sketcher.Constraint("DistanceY", 57, 3, -1, 1, Q("20.048241 mm")))
sketch1.addConstraint(Sketcher.Constraint("DistanceY", 58, 3, -1, 1, Q("19.548238 mm")))
sketch1.addConstraint(Sketcher.Constraint("DistanceX", 61, 3, -1, 1, Q("7.183219 mm")))
sketch1.addConstraint(Sketcher.Constraint("DistanceY", 61, 3, -1, 1, Q("20.048238 mm")))
sketch1.addConstraint(Sketcher.Constraint("DistanceX", -1, 1, 66, 3, Q("17.739921 mm")))
sketch1.addConstraint(Sketcher.Constraint("DistanceY", 66, 3, -1, 1, Q("23.84816 mm")))
sketch1.addConstraint(Sketcher.Constraint("DistanceX", -1, 1, 68, 3, Q("22.20787 mm")))
sketch1.addConstraint(Sketcher.Constraint("DistanceY", 70, 3, -1, 1, Q("22.482131 mm")))
sketch1.addConstraint(Sketcher.Constraint("DistanceX", -1, 1, 73, 3, Q("23.073891 mm")))
sketch1.addConstraint(Sketcher.Constraint("DistanceY", 73, 3, -1, 1, Q("20.048241 mm")))
sketch1.addConstraint(Sketcher.Constraint("DistanceY", 74, 3, -1, 1, Q("19.54824 mm")))
sketch1.addConstraint(Sketcher.Constraint("DistanceY", 78, 3, -1, 1, Q("20.914269 mm")))
sketch1.addConstraint(Sketcher.Constraint("DistanceY", 81, 3, -1, 1, Q("23.34816 mm")))
sketch1.addConstraint(Sketcher.Constraint("DistanceY", 4, 1, -1, 1, Q("5.690951 mm")))
sketch1.addConstraint(Sketcher.Constraint("DistanceY", 6, 1, -1, 1, Q("7.757991 mm")))
sketch1.addConstraint(Sketcher.Constraint("DistanceX", -1, 1, 7, 2, Q("29.062419 mm")))
sketch1.addConstraint(Sketcher.Constraint("DistanceX", -1, 1, 8, 1, Q("29.495431 mm")))
sketch1.addConstraint(Sketcher.Constraint("DistanceX", 26, 2, -1, 1, Q("25.72867 mm")))
sketch1.addConstraint(Sketcher.Constraint("DistanceY", 37, 2, -1, 1, Q("8.236042 mm")))
sketch1.addConstraint(Sketcher.Constraint("DistanceX", 39, 1, -1, 1, Q("13.17455 mm")))
sketch1.addConstraint(Sketcher.Constraint("DistanceY", 41, 1, -1, 1, Q("7.370012 mm")))
sketch1.addConstraint(Sketcher.Constraint("DistanceX", 44, 2, -1, 1, Q("7.653939 mm")))
sketch1.addConstraint(Sketcher.Constraint("DistanceX", 45, 1, -1, 1, Q("7.14385 mm")))
sketch1.addConstraint(Sketcher.Constraint("DistanceX", 49, 2, -1, 1, Q("6.75021 mm")))
sketch1.addConstraint(Sketcher.Constraint("DistanceY", 52, 1, -1, 1, Q("23.598161 mm")))
sketch1.addConstraint(Sketcher.Constraint("DistanceY", 53, 2, -1, 1, Q("22.915149 mm")))
sketch1.addConstraint(Sketcher.Constraint("DistanceX", 56, 1, -1, 1, Q("0.73322 mm")))
sketch1.addConstraint(Sketcher.Constraint("DistanceX", 57, 2, -1, 1, Q("1.416232 mm")))
sketch1.addConstraint(Sketcher.Constraint("DistanceY", 60, 1, -1, 1, Q("19.798238 mm")))
sketch1.addConstraint(Sketcher.Constraint("DistanceX", 61, 2, -1, 1, Q("7.433221 mm")))
sketch1.addConstraint(Sketcher.Constraint("DistanceX", -1, 1, 66, 1, Q("17.739921 mm")))
sketch1.addConstraint(Sketcher.Constraint("DistanceY", 68, 1, -1, 1, Q("23.598158 mm")))
sketch1.addConstraint(Sketcher.Constraint("DistanceX", -1, 1, 73, 2, Q("22.640879 mm")))
sketch1.addConstraint(Sketcher.Constraint("DistanceY", 76, 1, -1, 1, Q("19.798242 mm")))
sketch1.addConstraint(Sketcher.Constraint("DistanceY", 78, 1, -1, 1, Q("20.914268 mm")))
sketch1.addConstraint(Sketcher.Constraint("DistanceY", 80, 1, -1, 1, Q("22.915148 mm")))
sketch1.addConstraint(Sketcher.Constraint("DistanceX", -1, 1, 81, 2, Q("17.306908 mm")))
sketch1.addConstraint(Sketcher.Constraint("DistanceX", -1, 1, 4, 3, Q("28.129404 mm")))
sketch1.addConstraint(Sketcher.Constraint("DistanceX", 39, 3, -1, 1, Q("13.607563 mm")))
sketch1.addConstraint(Sketcher.Constraint("DistanceX", 40, 3, -1, 1, Q("12.741537 mm")))
sketch1.addConstraint(Sketcher.Constraint("DistanceX", 47, 3, -1, 1, Q("15.055624 mm")))
sketch1.addConstraint(Sketcher.Constraint("DistanceX", 49, 3, -1, 1, Q("7.183222 mm")))
sketch1.addConstraint(Sketcher.Constraint("DistanceX", 62, 3, -1, 1, Q("7.683222 mm")))
sketch1.addConstraint(Sketcher.Constraint("DistanceX", -1, 1, 65, 3, Q("7.945338 mm")))
sketch1.addConstraint(Sketcher.Constraint("DistanceY", 65, 3, -1, 1, Q("21.715314 mm")))
sketch1.addConstraint(Sketcher.Constraint("DistanceX", -1, 1, 69, 3, Q("23.073895 mm")))
sketch1.addConstraint(Sketcher.Constraint("DistanceX", -1, 1, 76, 3, Q("17.739916 mm")))
sketch1.addConstraint(Sketcher.Constraint("DistanceX", -1, 1, 77, 3, Q("16.873892 mm")))
sketch1.addConstraint(Sketcher.Constraint("DistanceX", -1, 1, 2, 1, Q("23.487066 mm")))
sketch1.addConstraint(Sketcher.Constraint("DistanceX", 40, 2, -1, 1, Q("12.491536 mm")))
sketch1.addConstraint(Sketcher.Constraint("DistanceY", 54, 1, -1, 1, Q("22.482134 mm")))
sketch1.addConstraint(Sketcher.Constraint("DistanceX", 58, 1, -1, 1, Q("1.849244 mm")))
sketch1.addConstraint(Sketcher.Constraint("DistanceY", 62, 1, -1, 1, Q("20.914263 mm")))
sketch1.addConstraint(Sketcher.Constraint("DistanceX", 64, 1, -1, 1, Q("7.433222 mm")))
sketch1.addConstraint(Sketcher.Constraint("DistanceX", -1, 1, 69, 2, Q("23.323894 mm")))
sketch1.addConstraint(Sketcher.Constraint("DistanceY", 70, 1, -1, 1, Q("22.482134 mm")))
sketch1.addConstraint(Sketcher.Constraint("DistanceX", -1, 1, 72, 1, Q("23.323893 mm")))
sketch1.addConstraint(Sketcher.Constraint("DistanceX", -1, 1, 74, 1, Q("22.207866 mm")))
sketch1.addConstraint(Sketcher.Constraint("DistanceX", -1, 1, 77, 2, Q("16.623892 mm")))
pad1 = body.newObject("PartDesign::Pad", "Pad")
pad1.Profile = sketch1
pad1.Length = 3
pad1.Reversed = True

doc.recompute()
